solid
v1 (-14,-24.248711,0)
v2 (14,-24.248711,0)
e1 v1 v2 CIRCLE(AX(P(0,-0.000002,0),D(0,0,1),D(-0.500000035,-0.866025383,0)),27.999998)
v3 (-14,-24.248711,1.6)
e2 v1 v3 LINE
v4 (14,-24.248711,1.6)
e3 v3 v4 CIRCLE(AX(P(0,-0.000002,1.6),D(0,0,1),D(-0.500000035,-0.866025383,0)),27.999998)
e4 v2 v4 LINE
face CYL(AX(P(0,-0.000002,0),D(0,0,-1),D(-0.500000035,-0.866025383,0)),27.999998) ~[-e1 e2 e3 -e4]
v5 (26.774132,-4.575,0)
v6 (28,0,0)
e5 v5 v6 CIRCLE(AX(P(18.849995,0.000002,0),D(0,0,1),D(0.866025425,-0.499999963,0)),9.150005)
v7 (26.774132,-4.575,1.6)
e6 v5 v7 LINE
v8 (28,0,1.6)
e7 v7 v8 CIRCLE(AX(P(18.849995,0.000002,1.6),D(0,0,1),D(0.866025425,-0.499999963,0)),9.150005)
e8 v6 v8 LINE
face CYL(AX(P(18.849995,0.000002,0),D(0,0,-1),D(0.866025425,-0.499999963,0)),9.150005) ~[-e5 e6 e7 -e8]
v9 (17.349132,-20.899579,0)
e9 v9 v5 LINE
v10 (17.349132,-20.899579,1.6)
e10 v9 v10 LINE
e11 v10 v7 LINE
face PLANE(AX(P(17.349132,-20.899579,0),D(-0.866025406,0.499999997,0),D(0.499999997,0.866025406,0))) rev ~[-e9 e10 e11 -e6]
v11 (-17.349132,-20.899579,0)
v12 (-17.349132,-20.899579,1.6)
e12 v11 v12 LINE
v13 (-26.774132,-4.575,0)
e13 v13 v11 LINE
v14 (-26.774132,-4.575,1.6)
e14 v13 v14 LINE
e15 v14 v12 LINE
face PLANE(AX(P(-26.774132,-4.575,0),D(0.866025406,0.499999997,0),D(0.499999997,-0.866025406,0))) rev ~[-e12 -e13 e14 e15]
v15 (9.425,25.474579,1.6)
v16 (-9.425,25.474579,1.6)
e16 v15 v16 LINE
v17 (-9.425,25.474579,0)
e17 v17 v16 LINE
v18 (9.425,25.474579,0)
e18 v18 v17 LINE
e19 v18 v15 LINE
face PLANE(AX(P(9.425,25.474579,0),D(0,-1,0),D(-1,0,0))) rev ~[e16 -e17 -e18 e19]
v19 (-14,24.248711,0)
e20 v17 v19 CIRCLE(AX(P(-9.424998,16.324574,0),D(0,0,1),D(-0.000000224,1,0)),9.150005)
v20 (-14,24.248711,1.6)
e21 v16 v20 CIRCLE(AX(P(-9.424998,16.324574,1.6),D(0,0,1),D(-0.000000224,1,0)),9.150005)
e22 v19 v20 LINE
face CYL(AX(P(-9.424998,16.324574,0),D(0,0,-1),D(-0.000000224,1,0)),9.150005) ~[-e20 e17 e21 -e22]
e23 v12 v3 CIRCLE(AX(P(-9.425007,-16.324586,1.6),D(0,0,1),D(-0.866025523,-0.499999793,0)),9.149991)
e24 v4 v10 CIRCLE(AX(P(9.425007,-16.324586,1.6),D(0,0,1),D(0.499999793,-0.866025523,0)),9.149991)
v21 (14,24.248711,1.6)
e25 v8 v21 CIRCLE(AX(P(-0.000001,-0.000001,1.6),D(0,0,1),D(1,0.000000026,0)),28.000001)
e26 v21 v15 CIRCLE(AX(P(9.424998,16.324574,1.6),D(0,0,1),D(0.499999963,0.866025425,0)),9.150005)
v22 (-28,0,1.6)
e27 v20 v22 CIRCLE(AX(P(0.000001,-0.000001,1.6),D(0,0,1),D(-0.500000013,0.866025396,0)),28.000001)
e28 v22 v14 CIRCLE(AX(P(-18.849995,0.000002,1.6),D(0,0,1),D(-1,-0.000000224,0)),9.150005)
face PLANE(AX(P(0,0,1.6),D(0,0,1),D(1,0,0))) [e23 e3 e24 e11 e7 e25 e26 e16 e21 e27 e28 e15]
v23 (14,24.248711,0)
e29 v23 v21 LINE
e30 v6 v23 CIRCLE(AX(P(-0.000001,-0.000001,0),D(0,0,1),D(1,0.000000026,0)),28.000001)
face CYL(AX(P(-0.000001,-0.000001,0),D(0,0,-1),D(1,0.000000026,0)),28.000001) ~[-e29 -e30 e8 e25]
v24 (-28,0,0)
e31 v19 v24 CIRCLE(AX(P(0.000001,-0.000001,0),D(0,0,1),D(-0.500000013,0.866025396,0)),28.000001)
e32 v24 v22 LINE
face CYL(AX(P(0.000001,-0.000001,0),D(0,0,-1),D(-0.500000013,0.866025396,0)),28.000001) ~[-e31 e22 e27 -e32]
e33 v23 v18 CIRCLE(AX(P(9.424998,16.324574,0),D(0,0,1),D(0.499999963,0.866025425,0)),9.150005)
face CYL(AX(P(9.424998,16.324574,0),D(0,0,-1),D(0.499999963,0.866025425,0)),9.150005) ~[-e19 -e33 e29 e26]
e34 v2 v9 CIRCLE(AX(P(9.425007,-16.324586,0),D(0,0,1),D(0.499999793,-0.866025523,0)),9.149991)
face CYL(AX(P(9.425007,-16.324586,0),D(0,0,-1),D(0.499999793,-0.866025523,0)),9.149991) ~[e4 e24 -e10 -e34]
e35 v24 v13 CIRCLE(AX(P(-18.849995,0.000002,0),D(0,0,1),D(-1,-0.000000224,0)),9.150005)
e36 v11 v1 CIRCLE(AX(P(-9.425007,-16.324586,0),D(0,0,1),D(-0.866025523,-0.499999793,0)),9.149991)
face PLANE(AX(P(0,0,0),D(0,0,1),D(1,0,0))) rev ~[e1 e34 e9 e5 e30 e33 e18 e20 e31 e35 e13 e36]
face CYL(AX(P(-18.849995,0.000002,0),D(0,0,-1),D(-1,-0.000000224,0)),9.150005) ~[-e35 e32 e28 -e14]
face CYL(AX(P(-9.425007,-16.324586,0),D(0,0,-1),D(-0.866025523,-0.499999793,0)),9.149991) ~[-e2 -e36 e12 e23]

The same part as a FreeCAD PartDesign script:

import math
import FreeCAD as App
import Part
import Sketcher
Q = App.Units.Quantity

doc = App.newDocument("Part")
body = doc.addObject("PartDesign::Body", "Body")

# Sketch on XY plane
sketch1 = body.newObject("Sketcher::SketchObject", "Sketch")
sketch1.AttachmentSupport = (doc.getObject("XY_Plane"), [""])
sketch1.MapMode = "FlatFace"
sketch1.addGeometry([
    Part.ArcOfCircle(Part.Circle(App.Vector(-9.4, 16.3, 0), App.Vector(0, 0, 1), 9.2), math.radians(90), math.radians(120)),  # 0
    Part.ArcOfCircle(Part.Circle(App.Vector(0, 0, 0), App.Vector(0, 0, 1), 28), math.radians(120), math.radians(180)),  # 1
    Part.ArcOfCircle(Part.Circle(App.Vector(-18.8, 0, 0), App.Vector(0, 0, 1), 9.2), math.radians(-180), math.radians(-150)),  # 2
    Part.LineSegment(App.Vector(-26.8, -4.6, 0), App.Vector(-17.3, -20.9, 0)),  # 3
    Part.ArcOfCircle(Part.Circle(App.Vector(-9.4, -16.3, 0), App.Vector(0, 0, 1), 9.1), math.radians(-150), math.radians(-120)),  # 4
    Part.ArcOfCircle(Part.Circle(App.Vector(0, 0, 0), App.Vector(0, 0, 1), 28), math.radians(-120), math.radians(-60)),  # 5
    Part.ArcOfCircle(Part.Circle(App.Vector(9.4, -16.3, 0), App.Vector(0, 0, 1), 9.1), math.radians(-60), math.radians(-30)),  # 6
    Part.LineSegment(App.Vector(17.3, -20.9, 0), App.Vector(26.8, -4.6, 0)),  # 7
    Part.ArcOfCircle(Part.Circle(App.Vector(18.8, 0, 0), App.Vector(0, 0, 1), 9.2), math.radians(-30), math.radians(0)),  # 8
    Part.ArcOfCircle(Part.Circle(App.Vector(0, 0, 0), App.Vector(0, 0, 1), 28), math.radians(0), math.radians(60)),  # 9
    Part.ArcOfCircle(Part.Circle(App.Vector(9.4, 16.3, 0), App.Vector(0, 0, 1), 9.2), math.radians(60), math.radians(90)),  # 10
    Part.LineSegment(App.Vector(9.4, 25.5, 0), App.Vector(-9.4, 25.5, 0)),  # 11
], False)
sketch1.addConstraint([
    Sketcher.Constraint("Tangent", 0, 2, 1, 1),
    Sketcher.Constraint("Tangent", 1, 2, 2, 1),
    Sketcher.Constraint("Tangent", 2, 2, 3, 1),
    Sketcher.Constraint("Tangent", 3, 2, 4, 1),
    Sketcher.Constraint("Tangent", 4, 2, 5, 1),
    Sketcher.Constraint("Tangent", 5, 2, 6, 1),
    Sketcher.Constraint("Tangent", 6, 2, 7, 1),
    Sketcher.Constraint("Tangent", 7, 2, 8, 1),
    Sketcher.Constraint("Tangent", 8, 2, 9, 1),
    Sketcher.Constraint("Tangent", 9, 2, 10, 1),
    Sketcher.Constraint("Tangent", 10, 2, 11, 1),
    Sketcher.Constraint("Tangent", 11, 2, 0, 1),
    Sketcher.Constraint("Horizontal", 11),
    Sketcher.Constraint("Coincident", 1, 3, -1, 1),
    Sketcher.Constraint("Coincident", 5, 3, -1, 1),
    Sketcher.Constraint("Coincident", 9, 3, -1, 1),
    Sketcher.Constraint("Equal", 0, 2),
    Sketcher.Constraint("Equal", 4, 6),
    Sketcher.Constraint("Equal", 2, 8),
    Sketcher.Constraint("Equal", 1, 9),
    Sketcher.Constraint("Equal", 8, 10),
    Sketcher.Constraint("Symmetric", 0, 2, 5, 2, -1, 1),
    Sketcher.Constraint("Symmetric", 3, 2, 6, 2, -2),
    Sketcher.Constraint("PointOnObject", 1, 2, -1),
    Sketcher.Constraint("Radius", 1, Q("28.000001 mm")),
    Sketcher.Constraint("Angle", 3, Q("-60 deg")),
    Sketcher.Constraint("DistanceX", 0, 2, -1, 1, Q("14 mm")),
    Sketcher.Constraint("DistanceX", 11, 2, 11, 1, Q("18.85 mm")),
])
pad1 = body.newObject("PartDesign::Pad", "Pad")
pad1.Profile = sketch1
pad1.Length = 1.6

doc.recompute()
